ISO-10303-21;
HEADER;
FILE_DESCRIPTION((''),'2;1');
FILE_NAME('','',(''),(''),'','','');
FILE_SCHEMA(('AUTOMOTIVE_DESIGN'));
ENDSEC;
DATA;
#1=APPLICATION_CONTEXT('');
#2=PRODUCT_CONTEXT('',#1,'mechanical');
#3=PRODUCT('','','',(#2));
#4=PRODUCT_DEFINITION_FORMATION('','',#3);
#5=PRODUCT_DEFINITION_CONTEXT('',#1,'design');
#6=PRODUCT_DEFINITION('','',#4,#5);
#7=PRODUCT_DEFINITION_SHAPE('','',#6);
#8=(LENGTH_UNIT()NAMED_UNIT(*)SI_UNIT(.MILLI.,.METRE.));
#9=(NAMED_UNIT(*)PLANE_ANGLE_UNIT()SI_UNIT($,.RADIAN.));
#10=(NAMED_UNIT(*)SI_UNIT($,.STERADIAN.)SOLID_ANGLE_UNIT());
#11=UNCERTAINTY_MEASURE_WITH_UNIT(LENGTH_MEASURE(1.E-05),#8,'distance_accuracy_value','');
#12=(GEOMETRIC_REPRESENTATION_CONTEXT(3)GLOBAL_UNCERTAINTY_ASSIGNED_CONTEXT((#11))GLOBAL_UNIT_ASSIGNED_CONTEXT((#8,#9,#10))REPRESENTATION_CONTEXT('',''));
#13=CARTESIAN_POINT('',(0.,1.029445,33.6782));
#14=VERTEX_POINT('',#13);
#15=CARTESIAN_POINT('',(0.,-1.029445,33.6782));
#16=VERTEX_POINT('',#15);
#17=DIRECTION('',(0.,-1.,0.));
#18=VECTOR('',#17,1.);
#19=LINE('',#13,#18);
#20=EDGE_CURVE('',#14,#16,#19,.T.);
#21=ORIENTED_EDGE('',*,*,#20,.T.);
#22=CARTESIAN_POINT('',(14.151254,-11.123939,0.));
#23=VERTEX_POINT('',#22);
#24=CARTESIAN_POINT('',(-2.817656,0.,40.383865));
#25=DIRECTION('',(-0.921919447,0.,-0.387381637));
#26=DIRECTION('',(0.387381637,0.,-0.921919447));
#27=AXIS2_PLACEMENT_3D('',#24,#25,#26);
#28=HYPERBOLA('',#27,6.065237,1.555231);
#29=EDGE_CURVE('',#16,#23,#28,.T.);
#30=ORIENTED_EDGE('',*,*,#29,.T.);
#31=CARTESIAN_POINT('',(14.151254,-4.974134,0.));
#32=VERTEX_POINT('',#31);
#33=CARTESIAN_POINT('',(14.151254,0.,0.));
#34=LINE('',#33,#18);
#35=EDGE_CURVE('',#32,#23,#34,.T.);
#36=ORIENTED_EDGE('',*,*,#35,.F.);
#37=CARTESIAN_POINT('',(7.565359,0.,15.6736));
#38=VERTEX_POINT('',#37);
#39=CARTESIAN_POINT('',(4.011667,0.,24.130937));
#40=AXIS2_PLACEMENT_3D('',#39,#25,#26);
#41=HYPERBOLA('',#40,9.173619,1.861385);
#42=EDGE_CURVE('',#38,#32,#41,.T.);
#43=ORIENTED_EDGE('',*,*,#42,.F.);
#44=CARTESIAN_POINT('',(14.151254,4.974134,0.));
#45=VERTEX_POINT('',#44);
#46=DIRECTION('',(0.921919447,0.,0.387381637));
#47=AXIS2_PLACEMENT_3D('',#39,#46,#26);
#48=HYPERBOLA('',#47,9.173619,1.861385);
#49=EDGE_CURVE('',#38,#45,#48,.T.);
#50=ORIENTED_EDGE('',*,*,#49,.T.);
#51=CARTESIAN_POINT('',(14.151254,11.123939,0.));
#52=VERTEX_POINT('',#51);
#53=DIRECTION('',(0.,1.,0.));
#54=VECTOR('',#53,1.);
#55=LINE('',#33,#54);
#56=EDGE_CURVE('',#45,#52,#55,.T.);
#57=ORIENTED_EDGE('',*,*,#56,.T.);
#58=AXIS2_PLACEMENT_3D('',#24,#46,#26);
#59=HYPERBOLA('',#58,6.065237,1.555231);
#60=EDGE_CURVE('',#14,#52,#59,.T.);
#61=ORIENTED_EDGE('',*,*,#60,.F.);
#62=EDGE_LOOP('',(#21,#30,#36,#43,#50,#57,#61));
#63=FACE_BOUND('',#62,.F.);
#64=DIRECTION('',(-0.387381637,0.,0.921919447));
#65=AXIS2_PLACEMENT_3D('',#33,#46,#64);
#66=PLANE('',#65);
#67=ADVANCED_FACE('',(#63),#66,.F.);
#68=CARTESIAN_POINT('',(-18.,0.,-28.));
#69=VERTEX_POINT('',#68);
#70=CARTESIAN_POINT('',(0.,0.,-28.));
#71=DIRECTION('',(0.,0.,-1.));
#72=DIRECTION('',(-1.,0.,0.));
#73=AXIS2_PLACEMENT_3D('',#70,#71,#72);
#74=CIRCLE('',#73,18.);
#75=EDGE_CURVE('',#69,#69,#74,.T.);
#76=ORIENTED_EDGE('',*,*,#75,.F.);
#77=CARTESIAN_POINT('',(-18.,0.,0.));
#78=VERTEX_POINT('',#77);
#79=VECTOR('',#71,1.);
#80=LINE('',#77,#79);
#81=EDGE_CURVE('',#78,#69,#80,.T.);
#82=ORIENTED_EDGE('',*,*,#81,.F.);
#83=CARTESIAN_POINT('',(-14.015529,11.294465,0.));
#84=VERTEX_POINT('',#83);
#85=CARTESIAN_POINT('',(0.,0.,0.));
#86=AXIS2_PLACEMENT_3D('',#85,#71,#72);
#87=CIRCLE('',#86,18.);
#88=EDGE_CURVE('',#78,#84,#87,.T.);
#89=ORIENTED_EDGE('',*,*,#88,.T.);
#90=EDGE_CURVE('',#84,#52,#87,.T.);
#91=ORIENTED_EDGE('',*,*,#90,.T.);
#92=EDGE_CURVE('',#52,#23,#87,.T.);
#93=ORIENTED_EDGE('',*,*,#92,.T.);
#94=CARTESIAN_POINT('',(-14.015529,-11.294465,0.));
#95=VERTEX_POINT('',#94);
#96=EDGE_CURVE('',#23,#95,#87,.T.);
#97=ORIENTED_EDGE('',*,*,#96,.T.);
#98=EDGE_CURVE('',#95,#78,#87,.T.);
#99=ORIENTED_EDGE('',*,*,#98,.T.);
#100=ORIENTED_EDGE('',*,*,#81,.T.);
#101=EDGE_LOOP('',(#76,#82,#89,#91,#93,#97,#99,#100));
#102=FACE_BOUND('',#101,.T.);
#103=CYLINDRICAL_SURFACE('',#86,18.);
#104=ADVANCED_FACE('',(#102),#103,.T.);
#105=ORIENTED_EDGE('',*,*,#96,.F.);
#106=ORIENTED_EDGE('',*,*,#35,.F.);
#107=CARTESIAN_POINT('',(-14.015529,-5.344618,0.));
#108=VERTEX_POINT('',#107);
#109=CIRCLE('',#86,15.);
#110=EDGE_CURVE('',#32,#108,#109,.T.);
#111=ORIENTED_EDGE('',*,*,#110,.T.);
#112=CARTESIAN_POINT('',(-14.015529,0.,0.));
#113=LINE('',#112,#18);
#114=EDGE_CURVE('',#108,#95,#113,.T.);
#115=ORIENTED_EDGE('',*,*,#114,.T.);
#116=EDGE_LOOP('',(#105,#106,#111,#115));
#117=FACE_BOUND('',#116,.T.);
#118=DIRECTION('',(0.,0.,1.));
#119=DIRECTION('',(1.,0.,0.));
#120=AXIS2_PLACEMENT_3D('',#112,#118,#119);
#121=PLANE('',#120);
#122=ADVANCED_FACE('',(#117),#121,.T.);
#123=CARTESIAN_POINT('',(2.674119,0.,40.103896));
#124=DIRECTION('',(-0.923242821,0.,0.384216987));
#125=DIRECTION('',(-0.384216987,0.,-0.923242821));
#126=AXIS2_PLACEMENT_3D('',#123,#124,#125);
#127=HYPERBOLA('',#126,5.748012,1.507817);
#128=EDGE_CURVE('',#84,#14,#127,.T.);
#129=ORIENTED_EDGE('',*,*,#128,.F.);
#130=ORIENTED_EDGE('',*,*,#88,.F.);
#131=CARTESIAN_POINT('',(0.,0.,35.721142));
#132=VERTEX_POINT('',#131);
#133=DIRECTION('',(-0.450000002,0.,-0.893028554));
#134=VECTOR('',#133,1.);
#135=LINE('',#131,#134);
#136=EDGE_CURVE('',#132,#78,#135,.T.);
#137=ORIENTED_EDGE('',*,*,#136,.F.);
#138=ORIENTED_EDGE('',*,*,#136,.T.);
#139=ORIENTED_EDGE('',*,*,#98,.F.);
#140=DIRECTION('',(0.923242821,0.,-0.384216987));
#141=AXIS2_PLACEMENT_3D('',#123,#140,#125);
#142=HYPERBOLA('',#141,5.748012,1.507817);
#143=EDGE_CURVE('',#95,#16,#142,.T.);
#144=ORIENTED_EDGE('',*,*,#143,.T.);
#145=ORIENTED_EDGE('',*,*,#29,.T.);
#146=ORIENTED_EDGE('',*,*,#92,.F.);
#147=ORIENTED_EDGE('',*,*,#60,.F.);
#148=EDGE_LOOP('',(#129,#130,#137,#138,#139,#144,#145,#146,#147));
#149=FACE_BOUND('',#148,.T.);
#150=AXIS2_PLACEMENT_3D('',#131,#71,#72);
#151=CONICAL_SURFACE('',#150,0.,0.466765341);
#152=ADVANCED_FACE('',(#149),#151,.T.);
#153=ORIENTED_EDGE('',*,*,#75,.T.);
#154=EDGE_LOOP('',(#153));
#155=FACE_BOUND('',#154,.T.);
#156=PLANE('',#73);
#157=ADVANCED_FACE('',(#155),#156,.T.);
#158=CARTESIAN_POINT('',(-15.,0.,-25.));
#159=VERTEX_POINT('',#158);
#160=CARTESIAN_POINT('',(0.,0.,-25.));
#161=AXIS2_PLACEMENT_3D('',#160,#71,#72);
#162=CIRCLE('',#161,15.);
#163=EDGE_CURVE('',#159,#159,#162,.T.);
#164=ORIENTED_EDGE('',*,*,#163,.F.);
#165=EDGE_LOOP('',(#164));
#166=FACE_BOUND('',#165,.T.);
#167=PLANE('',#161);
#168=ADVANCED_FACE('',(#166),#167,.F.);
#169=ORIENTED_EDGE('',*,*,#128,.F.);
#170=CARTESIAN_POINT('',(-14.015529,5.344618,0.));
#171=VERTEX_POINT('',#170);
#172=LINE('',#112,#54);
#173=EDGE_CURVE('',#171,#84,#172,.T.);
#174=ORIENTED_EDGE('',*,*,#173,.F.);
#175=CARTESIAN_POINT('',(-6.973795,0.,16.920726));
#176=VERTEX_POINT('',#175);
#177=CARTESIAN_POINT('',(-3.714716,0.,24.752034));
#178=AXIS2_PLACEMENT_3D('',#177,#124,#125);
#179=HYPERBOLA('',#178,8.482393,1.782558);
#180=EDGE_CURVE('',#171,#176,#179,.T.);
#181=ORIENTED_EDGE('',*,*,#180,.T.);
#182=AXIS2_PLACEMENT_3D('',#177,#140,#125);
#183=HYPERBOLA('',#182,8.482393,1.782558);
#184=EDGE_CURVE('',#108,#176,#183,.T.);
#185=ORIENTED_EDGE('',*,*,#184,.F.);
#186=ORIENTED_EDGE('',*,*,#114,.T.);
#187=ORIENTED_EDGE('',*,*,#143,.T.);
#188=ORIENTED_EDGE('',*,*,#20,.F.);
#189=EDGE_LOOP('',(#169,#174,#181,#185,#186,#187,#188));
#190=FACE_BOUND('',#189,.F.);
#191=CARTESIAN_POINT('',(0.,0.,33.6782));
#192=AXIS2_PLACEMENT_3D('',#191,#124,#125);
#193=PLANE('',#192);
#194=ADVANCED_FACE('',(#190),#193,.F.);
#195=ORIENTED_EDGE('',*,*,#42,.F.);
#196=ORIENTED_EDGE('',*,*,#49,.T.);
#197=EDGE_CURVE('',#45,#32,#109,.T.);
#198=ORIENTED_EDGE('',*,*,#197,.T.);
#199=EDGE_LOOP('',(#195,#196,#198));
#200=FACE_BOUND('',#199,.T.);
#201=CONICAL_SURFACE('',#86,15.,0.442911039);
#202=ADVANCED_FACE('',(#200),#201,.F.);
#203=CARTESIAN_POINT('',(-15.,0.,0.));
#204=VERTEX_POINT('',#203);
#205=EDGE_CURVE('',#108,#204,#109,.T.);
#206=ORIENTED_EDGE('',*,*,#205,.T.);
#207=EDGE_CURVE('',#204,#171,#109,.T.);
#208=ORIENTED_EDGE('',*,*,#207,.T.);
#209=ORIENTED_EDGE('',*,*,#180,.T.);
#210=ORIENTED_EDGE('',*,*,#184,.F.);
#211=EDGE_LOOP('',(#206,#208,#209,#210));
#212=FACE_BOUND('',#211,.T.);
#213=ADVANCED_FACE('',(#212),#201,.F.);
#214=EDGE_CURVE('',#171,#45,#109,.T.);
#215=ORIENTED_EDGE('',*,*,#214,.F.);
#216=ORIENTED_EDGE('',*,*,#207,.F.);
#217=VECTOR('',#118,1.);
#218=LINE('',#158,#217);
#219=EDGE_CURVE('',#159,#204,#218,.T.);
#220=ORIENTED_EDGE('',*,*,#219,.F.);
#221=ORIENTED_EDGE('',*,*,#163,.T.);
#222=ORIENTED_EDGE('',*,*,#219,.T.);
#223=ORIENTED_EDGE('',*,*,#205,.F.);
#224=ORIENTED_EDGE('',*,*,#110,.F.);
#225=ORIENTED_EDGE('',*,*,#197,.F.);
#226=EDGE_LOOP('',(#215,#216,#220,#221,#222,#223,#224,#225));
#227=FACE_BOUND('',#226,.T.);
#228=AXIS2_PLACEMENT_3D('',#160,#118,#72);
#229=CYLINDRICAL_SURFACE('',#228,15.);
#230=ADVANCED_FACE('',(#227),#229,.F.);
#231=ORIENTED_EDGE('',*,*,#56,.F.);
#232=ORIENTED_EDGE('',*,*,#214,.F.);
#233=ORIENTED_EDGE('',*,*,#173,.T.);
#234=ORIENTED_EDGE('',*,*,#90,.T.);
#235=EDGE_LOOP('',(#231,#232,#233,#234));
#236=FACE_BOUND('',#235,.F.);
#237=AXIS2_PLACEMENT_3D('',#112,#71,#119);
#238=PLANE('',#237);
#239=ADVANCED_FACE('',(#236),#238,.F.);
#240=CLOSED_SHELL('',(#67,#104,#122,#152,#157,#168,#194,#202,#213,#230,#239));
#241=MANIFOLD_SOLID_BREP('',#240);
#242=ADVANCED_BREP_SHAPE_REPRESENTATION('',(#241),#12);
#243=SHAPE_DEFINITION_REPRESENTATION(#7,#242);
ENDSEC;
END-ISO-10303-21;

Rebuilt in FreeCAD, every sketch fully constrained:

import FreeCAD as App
import Part
import Sketcher
from FreeCAD import Vector


def add_polygon(sketch, points):
    """Adds a closed chain of lines whose ends are joined by coincident constraints."""
    first, n = sketch.GeometryCount, len(points)
    for a, b in zip(points, points[1:] + points[:1]):
        sketch.addGeometry(Part.LineSegment(App.Vector(*a, 0), App.Vector(*b, 0)), False)
    for i in range(n):
        sketch.addConstraint(Sketcher.Constraint("Coincident", first + i, 2, first + (i + 1) % n, 1))

doc = App.newDocument("Part")
body = doc.addObject("PartDesign::Body", "Body")

# Sketch on XZ plane
sketch1 = body.newObject("Sketcher::SketchObject", "Sketch")
sketch1.AttachmentSupport = (doc.getObject("XZ_Plane"), [""])
sketch1.MapMode = "FlatFace"
add_polygon(sketch1, [(0, 31.622777), (0, 35.721142), (-18, 0), (-18, -28), (0, -28), (0, -25), (-15, -25), (-15, 0)])  # lines 0-7
sketch1.addConstraint([
    Sketcher.Constraint("Vertical", 0),
    Sketcher.Constraint("Vertical", 2),
    Sketcher.Constraint("Horizontal", 3),
    Sketcher.Constraint("Vertical", 4),
    Sketcher.Constraint("Horizontal", 5),
    Sketcher.Constraint("Vertical", 6),
    Sketcher.Constraint("PointOnObject", 0, 2, -2),
    Sketcher.Constraint("PointOnObject", 1, 2, -1),
    Sketcher.Constraint("PointOnObject", 3, 2, -2),
    Sketcher.Constraint("PointOnObject", 6, 2, -1),
    Sketcher.Constraint("DistanceX", 3, 1, 3, 2, 18.0),
    Sketcher.Constraint("DistanceX", 5, 2, 5, 1, 15.0),
    Sketcher.Constraint("DistanceY", 2, 2, 2, 1, 28.0),
    Sketcher.Constraint("DistanceY", 4, 1, 4, 2, 3.0),
    Sketcher.Constraint("Distance", 1, 40.0),
    Sketcher.Constraint("Distance", 7, 35.0),
])
revolution = body.newObject("PartDesign::Revolution", "Revolution")
revolution.Profile = sketch1
revolution.ReferenceAxis = (sketch1, ["V_Axis"])
revolution.Angle = 360

# Sketch on XZ plane
sketch2 = body.newObject("Sketcher::SketchObject", "Sketch001")
sketch2.AttachmentSupport = (doc.getObject("XZ_Plane"), [""])
sketch2.MapMode = "FlatFace"
add_polygon(sketch2, [(0, 33.6782), (-14.015529, 0), (14.151254, 0)])  # lines 0-2
sketch2.addConstraint([
    Sketcher.Constraint("Horizontal", 1),
    Sketcher.Constraint("PointOnObject", 0, 2, -1),
    Sketcher.Constraint("PointOnObject", 2, 2, -2),
    Sketcher.Constraint("DistanceY", -1, 1, 2, 2, 33.6782),
    Sketcher.Constraint("Distance", 0, 36.478161),
    Sketcher.Constraint("DistanceX", 1, 1, 1, 2, 28.166783),
])
pocket1 = body.newObject("PartDesign::Pocket", "Pocket")
pocket1.Profile = sketch2
pocket1.Length = 25

# Sketch on XZ plane
sketch3 = body.newObject("Sketcher::SketchObject", "Sketch002")
sketch3.AttachmentSupport = (doc.getObject("XZ_Plane"), [""])
sketch3.MapMode = "FlatFace"
add_polygon(sketch3, [(0, 33.6782), (-14.015529, 0), (14.151254, 0)])  # lines 0-2
sketch3.addConstraint([
    Sketcher.Constraint("Horizontal", 1),
    Sketcher.Constraint("PointOnObject", 0, 2, -1),
    Sketcher.Constraint("PointOnObject", 2, 2, -2),
    Sketcher.Constraint("DistanceY", -1, 1, 2, 2, 33.6782),
    Sketcher.Constraint("Distance", 0, 36.478161),
    Sketcher.Constraint("DistanceX", 1, 1, 1, 2, 28.166783),
])
pocket2 = body.newObject("PartDesign::Pocket", "Pocket001")
pocket2.Profile = sketch3
pocket2.Length = 25
pocket2.Reversed = True

doc.recompute()
